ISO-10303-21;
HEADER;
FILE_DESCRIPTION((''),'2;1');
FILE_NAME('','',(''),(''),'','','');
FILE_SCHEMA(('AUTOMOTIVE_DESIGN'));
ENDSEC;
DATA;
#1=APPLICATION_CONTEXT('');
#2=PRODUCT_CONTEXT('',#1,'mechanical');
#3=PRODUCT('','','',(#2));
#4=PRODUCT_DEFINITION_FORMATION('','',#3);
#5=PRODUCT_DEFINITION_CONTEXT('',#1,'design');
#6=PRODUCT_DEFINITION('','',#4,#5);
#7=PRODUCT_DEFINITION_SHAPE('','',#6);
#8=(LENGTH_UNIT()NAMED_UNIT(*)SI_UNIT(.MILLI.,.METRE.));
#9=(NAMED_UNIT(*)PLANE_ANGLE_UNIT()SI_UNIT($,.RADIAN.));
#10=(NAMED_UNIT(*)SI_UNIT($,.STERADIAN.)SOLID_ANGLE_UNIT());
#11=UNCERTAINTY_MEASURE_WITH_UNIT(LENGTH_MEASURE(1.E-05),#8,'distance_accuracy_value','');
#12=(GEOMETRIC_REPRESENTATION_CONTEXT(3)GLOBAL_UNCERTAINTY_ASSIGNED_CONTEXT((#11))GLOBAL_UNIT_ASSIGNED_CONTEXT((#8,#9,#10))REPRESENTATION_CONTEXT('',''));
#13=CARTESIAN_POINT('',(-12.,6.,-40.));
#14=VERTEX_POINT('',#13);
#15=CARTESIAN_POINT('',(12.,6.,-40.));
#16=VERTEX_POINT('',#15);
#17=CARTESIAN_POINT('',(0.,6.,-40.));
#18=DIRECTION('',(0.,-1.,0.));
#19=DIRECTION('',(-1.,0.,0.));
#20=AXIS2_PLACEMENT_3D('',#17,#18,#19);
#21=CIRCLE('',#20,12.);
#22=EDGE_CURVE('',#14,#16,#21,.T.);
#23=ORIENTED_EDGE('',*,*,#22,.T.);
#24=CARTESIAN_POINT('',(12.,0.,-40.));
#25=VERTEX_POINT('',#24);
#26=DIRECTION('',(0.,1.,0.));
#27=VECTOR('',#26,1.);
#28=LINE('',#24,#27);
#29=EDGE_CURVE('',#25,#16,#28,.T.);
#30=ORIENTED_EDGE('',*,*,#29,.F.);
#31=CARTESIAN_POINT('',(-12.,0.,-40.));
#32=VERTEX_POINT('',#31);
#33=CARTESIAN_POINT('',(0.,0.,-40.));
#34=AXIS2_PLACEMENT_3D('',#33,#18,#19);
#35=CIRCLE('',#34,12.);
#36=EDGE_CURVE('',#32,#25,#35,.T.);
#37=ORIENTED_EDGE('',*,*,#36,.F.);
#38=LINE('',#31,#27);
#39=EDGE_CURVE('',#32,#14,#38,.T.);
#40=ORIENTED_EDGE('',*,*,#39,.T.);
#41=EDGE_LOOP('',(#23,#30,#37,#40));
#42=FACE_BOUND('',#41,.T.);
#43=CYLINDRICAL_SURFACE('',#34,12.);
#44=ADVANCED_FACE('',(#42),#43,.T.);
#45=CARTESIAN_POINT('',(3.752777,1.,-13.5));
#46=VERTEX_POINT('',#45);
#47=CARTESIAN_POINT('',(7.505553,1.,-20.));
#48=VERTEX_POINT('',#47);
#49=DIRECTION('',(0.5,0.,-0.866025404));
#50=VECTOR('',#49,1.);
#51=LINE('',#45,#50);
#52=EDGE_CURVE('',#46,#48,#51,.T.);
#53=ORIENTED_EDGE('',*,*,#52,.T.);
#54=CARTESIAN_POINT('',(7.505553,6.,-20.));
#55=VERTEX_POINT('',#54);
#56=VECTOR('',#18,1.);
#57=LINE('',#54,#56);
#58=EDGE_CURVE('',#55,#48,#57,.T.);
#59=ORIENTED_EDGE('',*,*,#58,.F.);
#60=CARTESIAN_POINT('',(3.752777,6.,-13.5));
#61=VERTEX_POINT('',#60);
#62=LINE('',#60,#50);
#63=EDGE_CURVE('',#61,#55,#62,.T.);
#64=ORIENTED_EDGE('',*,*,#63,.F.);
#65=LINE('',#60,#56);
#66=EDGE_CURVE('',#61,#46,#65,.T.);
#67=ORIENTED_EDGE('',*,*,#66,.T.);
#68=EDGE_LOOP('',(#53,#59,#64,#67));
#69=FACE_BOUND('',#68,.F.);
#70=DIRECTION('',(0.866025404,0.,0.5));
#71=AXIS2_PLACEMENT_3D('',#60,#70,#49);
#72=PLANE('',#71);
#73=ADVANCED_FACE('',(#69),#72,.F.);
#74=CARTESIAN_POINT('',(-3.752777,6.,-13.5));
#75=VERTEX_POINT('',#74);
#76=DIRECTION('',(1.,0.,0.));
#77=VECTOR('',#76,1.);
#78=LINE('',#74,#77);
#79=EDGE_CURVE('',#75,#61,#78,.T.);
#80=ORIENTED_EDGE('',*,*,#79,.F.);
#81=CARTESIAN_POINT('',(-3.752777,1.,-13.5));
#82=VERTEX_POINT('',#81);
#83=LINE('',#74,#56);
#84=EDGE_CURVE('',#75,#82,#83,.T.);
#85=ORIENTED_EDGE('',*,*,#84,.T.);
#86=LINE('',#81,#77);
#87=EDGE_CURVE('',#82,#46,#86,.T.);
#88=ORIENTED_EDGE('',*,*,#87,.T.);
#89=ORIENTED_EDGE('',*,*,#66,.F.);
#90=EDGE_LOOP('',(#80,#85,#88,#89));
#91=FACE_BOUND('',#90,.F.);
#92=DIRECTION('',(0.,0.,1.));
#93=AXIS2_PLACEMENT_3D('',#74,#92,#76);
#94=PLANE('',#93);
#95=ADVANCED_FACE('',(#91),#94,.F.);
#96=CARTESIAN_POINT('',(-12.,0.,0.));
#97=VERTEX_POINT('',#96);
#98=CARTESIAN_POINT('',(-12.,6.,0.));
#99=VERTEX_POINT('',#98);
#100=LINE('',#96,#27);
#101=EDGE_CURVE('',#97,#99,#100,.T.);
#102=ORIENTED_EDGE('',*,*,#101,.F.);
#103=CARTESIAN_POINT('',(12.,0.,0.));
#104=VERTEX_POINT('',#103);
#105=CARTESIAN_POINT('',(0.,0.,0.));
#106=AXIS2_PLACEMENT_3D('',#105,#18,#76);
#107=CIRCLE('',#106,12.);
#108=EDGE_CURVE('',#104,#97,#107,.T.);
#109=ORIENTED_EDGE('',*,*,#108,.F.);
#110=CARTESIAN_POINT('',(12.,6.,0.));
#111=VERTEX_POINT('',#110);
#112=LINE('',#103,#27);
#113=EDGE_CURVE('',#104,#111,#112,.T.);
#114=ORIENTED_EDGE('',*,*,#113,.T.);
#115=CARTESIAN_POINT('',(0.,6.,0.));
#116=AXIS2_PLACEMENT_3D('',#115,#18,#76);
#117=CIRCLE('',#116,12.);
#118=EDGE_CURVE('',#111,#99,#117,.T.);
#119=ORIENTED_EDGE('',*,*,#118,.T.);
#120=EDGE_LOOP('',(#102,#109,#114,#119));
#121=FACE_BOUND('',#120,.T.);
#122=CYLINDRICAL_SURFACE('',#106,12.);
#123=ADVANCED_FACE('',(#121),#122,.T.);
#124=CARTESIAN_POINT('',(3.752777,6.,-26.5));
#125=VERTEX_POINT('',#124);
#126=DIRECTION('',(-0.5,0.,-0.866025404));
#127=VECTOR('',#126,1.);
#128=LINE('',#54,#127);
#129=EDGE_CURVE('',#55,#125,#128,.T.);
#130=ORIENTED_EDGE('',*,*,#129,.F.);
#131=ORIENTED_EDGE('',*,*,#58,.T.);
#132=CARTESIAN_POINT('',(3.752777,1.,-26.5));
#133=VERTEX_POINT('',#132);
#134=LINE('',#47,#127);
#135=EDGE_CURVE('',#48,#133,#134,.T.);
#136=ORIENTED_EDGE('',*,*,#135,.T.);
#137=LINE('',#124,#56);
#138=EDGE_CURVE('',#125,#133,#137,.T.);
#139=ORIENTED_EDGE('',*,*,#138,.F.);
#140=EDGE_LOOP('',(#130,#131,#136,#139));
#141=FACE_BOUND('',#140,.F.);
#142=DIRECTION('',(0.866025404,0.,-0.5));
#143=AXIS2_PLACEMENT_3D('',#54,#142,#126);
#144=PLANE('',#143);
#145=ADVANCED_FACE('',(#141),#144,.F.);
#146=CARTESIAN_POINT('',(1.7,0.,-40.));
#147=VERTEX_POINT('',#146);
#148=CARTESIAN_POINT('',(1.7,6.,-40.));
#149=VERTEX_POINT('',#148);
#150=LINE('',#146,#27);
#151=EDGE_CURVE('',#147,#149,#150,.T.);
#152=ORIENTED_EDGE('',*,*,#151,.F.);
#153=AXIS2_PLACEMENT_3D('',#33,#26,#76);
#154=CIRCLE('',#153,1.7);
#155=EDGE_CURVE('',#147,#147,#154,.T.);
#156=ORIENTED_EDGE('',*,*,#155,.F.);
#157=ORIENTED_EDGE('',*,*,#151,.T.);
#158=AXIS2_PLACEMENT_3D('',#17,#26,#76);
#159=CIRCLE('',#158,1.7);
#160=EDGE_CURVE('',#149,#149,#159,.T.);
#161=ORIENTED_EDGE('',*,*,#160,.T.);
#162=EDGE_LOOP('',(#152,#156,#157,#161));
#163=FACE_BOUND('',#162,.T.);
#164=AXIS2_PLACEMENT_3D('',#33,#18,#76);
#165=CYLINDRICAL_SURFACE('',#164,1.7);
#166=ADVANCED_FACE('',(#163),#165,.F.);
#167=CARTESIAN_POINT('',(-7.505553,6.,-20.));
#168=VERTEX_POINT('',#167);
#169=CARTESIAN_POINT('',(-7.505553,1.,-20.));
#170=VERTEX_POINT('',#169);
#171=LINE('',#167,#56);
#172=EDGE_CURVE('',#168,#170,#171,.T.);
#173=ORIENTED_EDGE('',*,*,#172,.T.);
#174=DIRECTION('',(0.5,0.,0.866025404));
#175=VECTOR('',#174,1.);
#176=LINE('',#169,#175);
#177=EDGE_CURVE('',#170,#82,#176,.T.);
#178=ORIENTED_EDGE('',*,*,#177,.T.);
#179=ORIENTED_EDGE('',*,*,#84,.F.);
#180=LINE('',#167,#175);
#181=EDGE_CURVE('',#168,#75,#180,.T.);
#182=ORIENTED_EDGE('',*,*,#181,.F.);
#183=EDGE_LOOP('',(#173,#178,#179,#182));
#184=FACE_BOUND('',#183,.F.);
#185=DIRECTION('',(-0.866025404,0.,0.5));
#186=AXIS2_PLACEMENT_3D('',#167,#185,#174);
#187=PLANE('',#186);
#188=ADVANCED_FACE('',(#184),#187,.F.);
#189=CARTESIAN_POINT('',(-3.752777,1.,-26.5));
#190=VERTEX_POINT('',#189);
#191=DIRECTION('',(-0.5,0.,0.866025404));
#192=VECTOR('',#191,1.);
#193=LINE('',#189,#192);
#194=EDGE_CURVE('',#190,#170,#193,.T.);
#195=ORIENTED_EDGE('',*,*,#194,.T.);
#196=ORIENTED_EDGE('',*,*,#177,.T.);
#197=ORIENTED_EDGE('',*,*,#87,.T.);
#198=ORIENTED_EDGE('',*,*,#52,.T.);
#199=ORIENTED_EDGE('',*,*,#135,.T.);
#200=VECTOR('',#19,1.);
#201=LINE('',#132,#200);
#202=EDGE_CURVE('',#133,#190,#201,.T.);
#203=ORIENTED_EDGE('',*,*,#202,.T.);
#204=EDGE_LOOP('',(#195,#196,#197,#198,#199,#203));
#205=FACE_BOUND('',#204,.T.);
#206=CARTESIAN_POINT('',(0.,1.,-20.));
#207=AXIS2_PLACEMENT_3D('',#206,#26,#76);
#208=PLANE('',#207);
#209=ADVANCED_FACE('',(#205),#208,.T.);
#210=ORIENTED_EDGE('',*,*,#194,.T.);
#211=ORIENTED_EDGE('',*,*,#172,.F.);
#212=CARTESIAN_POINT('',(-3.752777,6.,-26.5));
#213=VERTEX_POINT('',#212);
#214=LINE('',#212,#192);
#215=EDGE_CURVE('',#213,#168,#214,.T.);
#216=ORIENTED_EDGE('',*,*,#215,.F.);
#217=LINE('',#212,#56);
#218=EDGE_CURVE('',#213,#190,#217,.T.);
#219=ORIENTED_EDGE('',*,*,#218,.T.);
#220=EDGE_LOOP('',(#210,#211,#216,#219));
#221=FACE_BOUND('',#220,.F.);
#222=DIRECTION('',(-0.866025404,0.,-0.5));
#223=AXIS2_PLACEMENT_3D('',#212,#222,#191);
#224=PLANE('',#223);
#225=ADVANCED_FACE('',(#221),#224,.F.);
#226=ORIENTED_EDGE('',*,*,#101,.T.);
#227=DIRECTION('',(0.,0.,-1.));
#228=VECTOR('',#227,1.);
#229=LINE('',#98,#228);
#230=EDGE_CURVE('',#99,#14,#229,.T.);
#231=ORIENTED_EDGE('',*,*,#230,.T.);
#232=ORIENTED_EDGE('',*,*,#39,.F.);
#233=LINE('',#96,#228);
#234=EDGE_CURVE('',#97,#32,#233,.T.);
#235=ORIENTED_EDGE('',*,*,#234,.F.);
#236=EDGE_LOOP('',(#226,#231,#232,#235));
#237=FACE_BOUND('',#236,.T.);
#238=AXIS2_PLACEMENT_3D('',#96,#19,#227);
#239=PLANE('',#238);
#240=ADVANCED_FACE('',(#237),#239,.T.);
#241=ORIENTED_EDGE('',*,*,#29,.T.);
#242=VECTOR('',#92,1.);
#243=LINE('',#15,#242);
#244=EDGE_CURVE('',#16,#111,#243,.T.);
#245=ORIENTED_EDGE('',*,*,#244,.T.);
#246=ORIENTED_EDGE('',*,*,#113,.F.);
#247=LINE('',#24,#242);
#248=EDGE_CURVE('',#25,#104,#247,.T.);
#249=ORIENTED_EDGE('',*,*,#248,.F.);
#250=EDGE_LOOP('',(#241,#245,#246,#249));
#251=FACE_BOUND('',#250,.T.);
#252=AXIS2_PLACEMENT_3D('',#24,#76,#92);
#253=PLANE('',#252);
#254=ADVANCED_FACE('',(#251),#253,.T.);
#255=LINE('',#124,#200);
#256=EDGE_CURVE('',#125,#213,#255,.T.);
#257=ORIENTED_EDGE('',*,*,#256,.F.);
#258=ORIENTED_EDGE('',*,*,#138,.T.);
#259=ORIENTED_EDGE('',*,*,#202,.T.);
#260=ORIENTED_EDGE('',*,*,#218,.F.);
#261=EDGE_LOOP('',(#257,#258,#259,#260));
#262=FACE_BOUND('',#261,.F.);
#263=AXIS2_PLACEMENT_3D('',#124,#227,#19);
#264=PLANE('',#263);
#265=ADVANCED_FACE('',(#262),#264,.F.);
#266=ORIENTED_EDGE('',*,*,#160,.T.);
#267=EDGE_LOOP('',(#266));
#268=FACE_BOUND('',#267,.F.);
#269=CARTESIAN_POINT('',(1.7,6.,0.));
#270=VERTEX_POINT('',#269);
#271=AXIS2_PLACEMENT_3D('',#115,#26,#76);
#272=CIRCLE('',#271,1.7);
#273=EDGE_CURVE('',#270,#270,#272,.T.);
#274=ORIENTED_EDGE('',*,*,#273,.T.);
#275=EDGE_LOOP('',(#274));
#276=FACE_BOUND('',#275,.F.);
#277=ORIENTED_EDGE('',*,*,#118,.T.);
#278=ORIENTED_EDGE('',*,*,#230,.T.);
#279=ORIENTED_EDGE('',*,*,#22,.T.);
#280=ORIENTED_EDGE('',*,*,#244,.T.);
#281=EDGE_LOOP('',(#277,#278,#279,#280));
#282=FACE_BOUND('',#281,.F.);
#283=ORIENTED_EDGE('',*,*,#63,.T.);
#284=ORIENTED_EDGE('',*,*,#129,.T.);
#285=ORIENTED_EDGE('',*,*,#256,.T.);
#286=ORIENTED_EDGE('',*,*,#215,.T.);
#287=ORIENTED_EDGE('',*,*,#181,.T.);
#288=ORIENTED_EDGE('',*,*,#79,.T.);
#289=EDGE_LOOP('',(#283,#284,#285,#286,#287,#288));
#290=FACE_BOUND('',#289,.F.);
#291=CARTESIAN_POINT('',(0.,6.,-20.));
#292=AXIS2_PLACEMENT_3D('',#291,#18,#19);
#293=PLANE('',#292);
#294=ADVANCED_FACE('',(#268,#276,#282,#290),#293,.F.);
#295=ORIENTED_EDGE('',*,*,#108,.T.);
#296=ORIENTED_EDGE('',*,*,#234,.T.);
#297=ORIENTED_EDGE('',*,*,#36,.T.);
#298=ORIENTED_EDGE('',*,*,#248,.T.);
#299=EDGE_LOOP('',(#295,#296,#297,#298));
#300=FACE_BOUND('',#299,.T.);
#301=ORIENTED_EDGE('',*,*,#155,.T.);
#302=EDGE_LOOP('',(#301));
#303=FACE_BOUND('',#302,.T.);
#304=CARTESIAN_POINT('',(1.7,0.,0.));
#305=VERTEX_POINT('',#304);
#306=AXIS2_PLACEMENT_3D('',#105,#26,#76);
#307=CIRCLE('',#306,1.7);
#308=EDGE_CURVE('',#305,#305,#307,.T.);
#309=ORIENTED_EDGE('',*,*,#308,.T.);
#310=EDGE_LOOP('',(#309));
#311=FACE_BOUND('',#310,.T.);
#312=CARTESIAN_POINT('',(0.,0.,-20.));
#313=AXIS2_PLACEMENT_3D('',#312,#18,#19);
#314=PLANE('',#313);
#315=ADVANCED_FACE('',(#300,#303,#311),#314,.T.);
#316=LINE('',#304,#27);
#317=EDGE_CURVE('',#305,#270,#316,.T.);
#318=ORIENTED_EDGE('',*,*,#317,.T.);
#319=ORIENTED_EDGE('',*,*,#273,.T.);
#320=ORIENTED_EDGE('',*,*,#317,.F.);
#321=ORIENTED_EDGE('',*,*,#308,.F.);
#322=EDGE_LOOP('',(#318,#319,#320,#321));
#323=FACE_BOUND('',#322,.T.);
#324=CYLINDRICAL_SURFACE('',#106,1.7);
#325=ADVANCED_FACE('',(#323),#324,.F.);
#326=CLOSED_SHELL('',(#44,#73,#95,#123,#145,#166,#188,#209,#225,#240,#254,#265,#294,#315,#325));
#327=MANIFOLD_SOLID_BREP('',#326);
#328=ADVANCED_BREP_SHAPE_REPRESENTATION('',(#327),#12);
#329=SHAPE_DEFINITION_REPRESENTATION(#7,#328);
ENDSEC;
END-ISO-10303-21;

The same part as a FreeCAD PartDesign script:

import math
import FreeCAD as App
import Part
import Sketcher
Q = App.Units.Quantity

doc = App.newDocument("Part")
body = doc.addObject("PartDesign::Body", "Body")

sketch1 = body.newObject("Sketcher::SketchObject", "Sketch")
sketch1.AttachmentSupport = (doc.getObject("XZ_Plane"), [""])
sketch1.MapMode = "FlatFace"
sketch1.addGeometry(Part.LineSegment(App.Vector(-12, -40, 0), App.Vector(-12, 0, 0)), False)
sketch1.addGeometry(Part.ArcOfCircle(Part.Circle(App.Vector(0, 0, 0), App.Vector(0, 0, 1), 12), math.radians(0), math.radians(180)), False)
sketch1.addGeometry(Part.LineSegment(App.Vector(12, 0, 0), App.Vector(12, -40, 0)), False)
sketch1.addGeometry(Part.ArcOfCircle(Part.Circle(App.Vector(0, -40, 0), App.Vector(0, 0, 1), 12), math.radians(180), math.radians(360)), False)
sketch1.addGeometry(Part.Circle(App.Vector(0, 0, 0), App.Vector(0, 0, 1), 1.7), False)
sketch1.addGeometry(Part.Circle(App.Vector(0, -40, 0), App.Vector(0, 0, 1), 1.7), False)
sketch1.addConstraint(Sketcher.Constraint("Tangent", 0, 2, 1, 2))
sketch1.addConstraint(Sketcher.Constraint("Tangent", 1, 1, 2, 1))
sketch1.addConstraint(Sketcher.Constraint("Tangent", 2, 2, 3, 2))
sketch1.addConstraint(Sketcher.Constraint("Tangent", 3, 1, 0, 1))
sketch1.addConstraint(Sketcher.Constraint("Vertical", 0))
sketch1.addConstraint(Sketcher.Constraint("Vertical", 2))
sketch1.addConstraint(Sketcher.Constraint("Coincident", 1, 3, -1, 1))
sketch1.addConstraint(Sketcher.Constraint("Coincident", 4, 3, -1, 1))
sketch1.addConstraint(Sketcher.Constraint("Coincident", 5, 3, 3, 3))
sketch1.addConstraint(Sketcher.Constraint("Equal", 4, 5))
sketch1.addConstraint(Sketcher.Constraint("Radius", 1, 12.0))
sketch1.addConstraint(Sketcher.Constraint("Diameter", 4, 3.4))
sketch1.addConstraint(Sketcher.Constraint("DistanceY", 0, 1, 0, 2, 40.0))
pad1 = body.newObject("PartDesign::Pad", "Pad")
pad1.Profile = sketch1
pad1.Length = 6
pad1.Reversed = True

sketch2 = body.newObject("Sketcher::SketchObject", "Sketch001")
sketch2.AttachmentSupport = (doc.getObject("XZ_Plane"), [""])
sketch2.MapMode = "FlatFace"
sketch2.AttachmentOffset = App.Placement(App.Vector(0, 0, -6), App.Rotation())
sketch2.addGeometry(Part.LineSegment(App.Vector(3.752777, -13.5, 0), App.Vector(7.505553, -20, 0)), False)
sketch2.addGeometry(Part.LineSegment(App.Vector(7.505553, -20, 0), App.Vector(3.752777, -26.5, 0)), False)
sketch2.addGeometry(Part.LineSegment(App.Vector(3.752777, -26.5, 0), App.Vector(-3.752777, -26.5, 0)), False)
sketch2.addGeometry(Part.LineSegment(App.Vector(-3.752777, -26.5, 0), App.Vector(-7.505553, -20, 0)), False)
sketch2.addGeometry(Part.LineSegment(App.Vector(-7.505553, -20, 0), App.Vector(-3.752777, -13.5, 0)), False)
sketch2.addGeometry(Part.LineSegment(App.Vector(-3.752777, -13.5, 0), App.Vector(3.752777, -13.5, 0)), False)
sketch2.addConstraint(Sketcher.Constraint("Coincident", 0, 2, 1, 1))
sketch2.addConstraint(Sketcher.Constraint("Coincident", 1, 2, 2, 1))
sketch2.addConstraint(Sketcher.Constraint("Coincident", 2, 2, 3, 1))
sketch2.addConstraint(Sketcher.Constraint("Coincident", 3, 2, 4, 1))
sketch2.addConstraint(Sketcher.Constraint("Coincident", 4, 2, 5, 1))
sketch2.addConstraint(Sketcher.Constraint("Coincident", 5, 2, 0, 1))
sketch2.addConstraint(Sketcher.Constraint("Horizontal", 2))
sketch2.addConstraint(Sketcher.Constraint("Horizontal", 5))
sketch2.addConstraint(Sketcher.Constraint("Symmetric", 0, 2, 3, 2, -2))
sketch2.addConstraint(Sketcher.Constraint("Parallel", 0, 3))
sketch2.addConstraint(Sketcher.Constraint("Parallel", 1, 4))
sketch2.addConstraint(Sketcher.Constraint("Vertical", 2, 2, 4, 2))
sketch2.addConstraint(Sketcher.Constraint("Vertical", 1, 2, 5, 2))
sketch2.addConstraint(Sketcher.Constraint("Angle", 0, Q("-60 deg")))
sketch2.addConstraint(Sketcher.Constraint("DistanceY", 0, 2, -1, 1, 20.0))
sketch2.addConstraint(Sketcher.Constraint("DistanceY", 2, 2, 4, 2, 13.0))
sketch2.addConstraint(Sketcher.Constraint("DistanceX", 2, 2, 2, 1, 7.505554))
pocket1 = body.newObject("PartDesign::Pocket", "Pocket")
pocket1.Profile = sketch2
pocket1.Length = 5
pocket1.Reversed = True

doc.recompute()
